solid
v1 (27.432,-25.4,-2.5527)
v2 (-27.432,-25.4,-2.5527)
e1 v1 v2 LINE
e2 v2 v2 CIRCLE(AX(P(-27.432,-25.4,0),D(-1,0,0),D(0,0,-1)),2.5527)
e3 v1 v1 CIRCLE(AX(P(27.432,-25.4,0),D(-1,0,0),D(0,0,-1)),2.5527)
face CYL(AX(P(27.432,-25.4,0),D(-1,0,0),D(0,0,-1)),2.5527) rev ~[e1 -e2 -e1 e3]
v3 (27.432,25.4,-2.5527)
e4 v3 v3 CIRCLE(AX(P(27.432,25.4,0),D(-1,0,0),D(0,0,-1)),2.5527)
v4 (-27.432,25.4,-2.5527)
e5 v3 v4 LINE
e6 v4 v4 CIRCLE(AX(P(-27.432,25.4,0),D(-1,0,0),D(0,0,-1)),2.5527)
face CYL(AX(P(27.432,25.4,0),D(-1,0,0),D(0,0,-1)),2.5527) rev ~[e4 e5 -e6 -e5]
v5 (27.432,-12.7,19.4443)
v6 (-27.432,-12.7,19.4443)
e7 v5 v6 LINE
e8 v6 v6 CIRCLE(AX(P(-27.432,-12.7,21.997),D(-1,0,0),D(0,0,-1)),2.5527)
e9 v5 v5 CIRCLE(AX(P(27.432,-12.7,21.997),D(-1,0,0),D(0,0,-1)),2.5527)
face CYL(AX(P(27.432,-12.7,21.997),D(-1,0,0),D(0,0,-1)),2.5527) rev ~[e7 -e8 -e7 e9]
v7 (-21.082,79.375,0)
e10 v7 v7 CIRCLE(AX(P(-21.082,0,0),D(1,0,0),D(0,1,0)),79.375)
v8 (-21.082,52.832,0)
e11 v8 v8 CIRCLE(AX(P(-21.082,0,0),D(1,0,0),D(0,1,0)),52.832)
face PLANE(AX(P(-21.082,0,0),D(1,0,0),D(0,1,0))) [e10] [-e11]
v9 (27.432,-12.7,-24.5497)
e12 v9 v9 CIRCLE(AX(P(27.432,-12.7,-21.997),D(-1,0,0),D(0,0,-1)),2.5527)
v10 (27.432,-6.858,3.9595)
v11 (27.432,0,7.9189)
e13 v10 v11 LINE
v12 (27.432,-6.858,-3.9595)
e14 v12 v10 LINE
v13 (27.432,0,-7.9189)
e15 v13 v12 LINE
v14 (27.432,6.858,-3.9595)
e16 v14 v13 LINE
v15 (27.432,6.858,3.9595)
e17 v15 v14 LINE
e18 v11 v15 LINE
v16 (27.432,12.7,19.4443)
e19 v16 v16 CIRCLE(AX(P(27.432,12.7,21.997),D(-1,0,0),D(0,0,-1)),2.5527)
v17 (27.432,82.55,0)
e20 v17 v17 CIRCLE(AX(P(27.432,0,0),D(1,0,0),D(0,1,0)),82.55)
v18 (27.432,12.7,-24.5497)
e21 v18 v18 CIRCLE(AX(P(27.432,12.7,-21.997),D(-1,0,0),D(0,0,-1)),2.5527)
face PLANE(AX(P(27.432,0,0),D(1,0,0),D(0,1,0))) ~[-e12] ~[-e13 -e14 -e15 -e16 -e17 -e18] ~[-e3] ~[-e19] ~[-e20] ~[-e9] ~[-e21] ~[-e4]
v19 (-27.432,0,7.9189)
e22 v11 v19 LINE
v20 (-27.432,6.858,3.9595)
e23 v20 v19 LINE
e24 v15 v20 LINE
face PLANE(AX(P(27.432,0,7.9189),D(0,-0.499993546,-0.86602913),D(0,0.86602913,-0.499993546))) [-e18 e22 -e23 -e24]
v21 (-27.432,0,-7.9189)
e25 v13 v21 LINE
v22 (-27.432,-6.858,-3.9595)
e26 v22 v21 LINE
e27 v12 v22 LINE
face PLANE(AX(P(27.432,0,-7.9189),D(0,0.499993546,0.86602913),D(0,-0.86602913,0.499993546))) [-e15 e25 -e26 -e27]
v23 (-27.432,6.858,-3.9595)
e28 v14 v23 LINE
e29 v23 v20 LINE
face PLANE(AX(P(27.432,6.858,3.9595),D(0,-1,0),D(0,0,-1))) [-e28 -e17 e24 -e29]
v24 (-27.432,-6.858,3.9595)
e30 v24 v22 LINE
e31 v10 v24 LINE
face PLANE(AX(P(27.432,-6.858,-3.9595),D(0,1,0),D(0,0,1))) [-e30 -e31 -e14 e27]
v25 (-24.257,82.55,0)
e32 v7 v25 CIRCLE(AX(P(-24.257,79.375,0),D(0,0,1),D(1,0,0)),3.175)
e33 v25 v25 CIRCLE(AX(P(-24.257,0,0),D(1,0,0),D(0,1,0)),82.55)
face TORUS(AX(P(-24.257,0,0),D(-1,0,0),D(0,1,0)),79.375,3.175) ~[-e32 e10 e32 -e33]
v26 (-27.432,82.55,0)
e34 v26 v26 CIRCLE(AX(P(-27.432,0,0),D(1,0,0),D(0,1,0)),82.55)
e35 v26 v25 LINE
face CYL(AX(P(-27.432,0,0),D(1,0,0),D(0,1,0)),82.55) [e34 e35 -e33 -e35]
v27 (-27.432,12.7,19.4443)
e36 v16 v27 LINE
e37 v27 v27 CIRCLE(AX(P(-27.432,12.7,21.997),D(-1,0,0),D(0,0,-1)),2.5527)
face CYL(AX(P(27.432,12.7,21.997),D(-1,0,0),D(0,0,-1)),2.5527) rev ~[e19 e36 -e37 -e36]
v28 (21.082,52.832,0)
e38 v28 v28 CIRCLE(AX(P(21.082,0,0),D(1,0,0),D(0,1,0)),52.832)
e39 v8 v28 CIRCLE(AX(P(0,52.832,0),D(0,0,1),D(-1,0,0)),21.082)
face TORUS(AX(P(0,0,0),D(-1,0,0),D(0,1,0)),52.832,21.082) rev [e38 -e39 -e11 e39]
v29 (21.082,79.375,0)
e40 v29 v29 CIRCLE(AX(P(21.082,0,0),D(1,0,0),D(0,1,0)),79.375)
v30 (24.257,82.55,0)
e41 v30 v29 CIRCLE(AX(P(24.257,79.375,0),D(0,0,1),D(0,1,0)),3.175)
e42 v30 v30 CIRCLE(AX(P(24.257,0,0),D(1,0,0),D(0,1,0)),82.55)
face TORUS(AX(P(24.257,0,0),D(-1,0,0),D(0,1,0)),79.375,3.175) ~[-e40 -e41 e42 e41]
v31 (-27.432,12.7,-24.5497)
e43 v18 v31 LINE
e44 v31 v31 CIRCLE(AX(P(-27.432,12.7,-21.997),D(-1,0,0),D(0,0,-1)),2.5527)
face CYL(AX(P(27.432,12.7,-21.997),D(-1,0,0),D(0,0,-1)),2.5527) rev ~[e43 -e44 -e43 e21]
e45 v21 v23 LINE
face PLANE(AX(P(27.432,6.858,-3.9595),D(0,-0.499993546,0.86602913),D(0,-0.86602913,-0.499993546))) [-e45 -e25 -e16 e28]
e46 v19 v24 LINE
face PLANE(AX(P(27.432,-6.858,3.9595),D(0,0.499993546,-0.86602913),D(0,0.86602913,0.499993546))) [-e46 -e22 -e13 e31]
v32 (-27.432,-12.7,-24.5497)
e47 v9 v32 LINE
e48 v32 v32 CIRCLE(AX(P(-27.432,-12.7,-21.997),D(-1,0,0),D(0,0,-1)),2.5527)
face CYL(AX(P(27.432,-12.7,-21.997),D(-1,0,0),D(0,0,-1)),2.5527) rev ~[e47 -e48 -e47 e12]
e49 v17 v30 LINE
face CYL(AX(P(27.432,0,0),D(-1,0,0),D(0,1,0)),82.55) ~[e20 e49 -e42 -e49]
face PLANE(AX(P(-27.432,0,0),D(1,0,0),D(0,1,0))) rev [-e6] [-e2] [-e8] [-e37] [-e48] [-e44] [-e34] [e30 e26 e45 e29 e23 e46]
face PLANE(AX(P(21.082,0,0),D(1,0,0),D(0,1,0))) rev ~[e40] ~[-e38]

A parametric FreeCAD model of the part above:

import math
import FreeCAD as App
import Part
import Sketcher
from FreeCAD import Vector
Q = App.Units.Quantity


def add_polygon(sketch, points):
    """Adds a closed chain of lines whose ends are joined by coincident constraints."""
    first, n = sketch.GeometryCount, len(points)
    for a, b in zip(points, points[1:] + points[:1]):
        sketch.addGeometry(Part.LineSegment(App.Vector(*a, 0), App.Vector(*b, 0)), False)
    for i in range(n):
        sketch.addConstraint(Sketcher.Constraint("Coincident", first + i, 2, first + (i + 1) % n, 1))

doc = App.newDocument("Part")
body = doc.addObject("PartDesign::Body", "Body")

sketch1 = doc.addObject("Sketcher::SketchObject", "Sketch")
body.addObject(sketch1)
sketch1.AttachmentSupport = (doc.XY_Plane, [""])
sketch1.MapMode = "FlatFace"
sketch1.addGeometry(Part.ArcOfCircle(Part.Circle(Vector(0, 52.8, 0), Vector(0, 0, 1), 21.1), math.radians(180), math.radians(360)), False)
sketch1.addGeometry(Part.LineSegment(Vector(-21.1, 52.8, 0), Vector(-21.1, 79.4, 0)), False)
sketch1.addGeometry(Part.ArcOfCircle(Part.Circle(Vector(-24.3, 79.4, 0), Vector(0, 0, 1), 3.2), math.radians(0), math.radians(90)), False)
sketch1.addGeometry(Part.LineSegment(Vector(-24.3, 82.5, 0), Vector(-27.4, 82.5, 0)), False)
sketch1.addGeometry(Part.LineSegment(Vector(-27.4, 82.5, 0), Vector(-27.4, 0, 0)), False)
sketch1.addGeometry(Part.LineSegment(Vector(-27.4, 0, 0), Vector(27.4, 0, 0)), False)
sketch1.addGeometry(Part.LineSegment(Vector(27.4, 0, 0), Vector(27.4, 82.5, 0)), False)
sketch1.addGeometry(Part.LineSegment(Vector(27.4, 82.5, 0), Vector(24.3, 82.5, 0)), False)
sketch1.addGeometry(Part.ArcOfCircle(Part.Circle(Vector(24.3, 79.4, 0), Vector(0, 0, 1), 3.2), math.radians(90), math.radians(180)), False)
sketch1.addGeometry(Part.LineSegment(Vector(21.1, 79.4, 0), Vector(21.1, 52.8, 0)), False)
sketch1.addConstraint(Sketcher.Constraint("Tangent", 0, 1, 1, 1))
sketch1.addConstraint(Sketcher.Constraint("Tangent", 1, 2, 2, 1))
sketch1.addConstraint(Sketcher.Constraint("Tangent", 2, 2, 3, 1))
sketch1.addConstraint(Sketcher.Constraint("Coincident", 3, 2, 4, 1))
sketch1.addConstraint(Sketcher.Constraint("Coincident", 4, 2, 5, 1))
sketch1.addConstraint(Sketcher.Constraint("Coincident", 5, 2, 6, 1))
sketch1.addConstraint(Sketcher.Constraint("Coincident", 6, 2, 7, 1))
sketch1.addConstraint(Sketcher.Constraint("Tangent", 7, 2, 8, 1))
sketch1.addConstraint(Sketcher.Constraint("Tangent", 8, 2, 9, 1))
sketch1.addConstraint(Sketcher.Constraint("Tangent", 9, 2, 0, 2))
sketch1.addConstraint(Sketcher.Constraint("Vertical", 1))
sketch1.addConstraint(Sketcher.Constraint("Horizontal", 3))
sketch1.addConstraint(Sketcher.Constraint("Vertical", 4))
sketch1.addConstraint(Sketcher.Constraint("Horizontal", 5))
sketch1.addConstraint(Sketcher.Constraint("Vertical", 6))
sketch1.addConstraint(Sketcher.Constraint("Horizontal", 7))
sketch1.addConstraint(Sketcher.Constraint("Vertical", 9))
sketch1.addConstraint(Sketcher.Constraint("Equal", 2, 8))
sketch1.addConstraint(Sketcher.Constraint("Symmetric", 4, 2, 5, 2, -1, 1))
sketch1.addConstraint(Sketcher.Constraint("Symmetric", 2, 3, 8, 3, -2))
sketch1.addConstraint(Sketcher.Constraint("Radius", 0, Q("0.83 in")))
sketch1.addConstraint(Sketcher.Constraint("Radius", 2, Q("0.125 in")))
sketch1.addConstraint(Sketcher.Constraint("DistanceY", 4, 2, 4, 1, Q("3.25 in")))
sketch1.addConstraint(Sketcher.Constraint("DistanceX", 3, 2, 3, 1, Q("0.125 in")))
sketch1.addConstraint(Sketcher.Constraint("DistanceY", -1, 1, 0, 3, Q("2.08 in")))
revolution = doc.addObject("PartDesign::Revolution", "Revolution")
body.addObject(revolution)
revolution.Profile = sketch1
revolution.ReferenceAxis = (sketch1, ["H_Axis"])
revolution.Angle = 360

sketch2 = doc.addObject("Sketcher::SketchObject", "Sketch001")
body.addObject(sketch2)
sketch2.AttachmentSupport = (doc.YZ_Plane, [""])
sketch2.MapMode = "FlatFace"
sketch2.AttachmentOffset = App.Placement(Vector(0, 0, 1.08 * 25.4), App.Rotation())
add_polygon(sketch2, [(-7, -4), (0, -8), (7, -4), (7, 4), (0, 8), (-7, 4)])
sketch2.addConstraint(Sketcher.Constraint("Vertical", 2))
sketch2.addConstraint(Sketcher.Constraint("Vertical", 5))
sketch2.addConstraint(Sketcher.Constraint("Symmetric", 0, 2, 3, 2, -1, 1))
sketch2.addConstraint(Sketcher.Constraint("Symmetric", 1, 2, 4, 2, -1, 1))
sketch2.addConstraint(Sketcher.Constraint("PointOnObject", 0, 2, -2))
sketch2.addConstraint(Sketcher.Constraint("Parallel", 0, 3))
sketch2.addConstraint(Sketcher.Constraint("Horizontal", 2, 2, 4, 2))
sketch2.addConstraint(Sketcher.Constraint("DistanceX", 4, 2, 2, 2, Q("0.54 in")))
sketch2.addConstraint(Sketcher.Constraint("Angle", 0, Q("-29.9996 deg")))
sketch2.addConstraint(Sketcher.Constraint("DistanceY", 2, 1, 2, 2, 7.919))
pocket1 = doc.addObject("PartDesign::Pocket", "Pocket")
body.addObject(pocket1)
pocket1.Profile = sketch2
pocket1.Type = "ThroughAll"

sketch3 = doc.addObject("Sketcher::SketchObject", "Sketch002")
body.addObject(sketch3)
sketch3.AttachmentSupport = (doc.YZ_Plane, [""])
sketch3.MapMode = "FlatFace"
sketch3.AttachmentOffset = App.Placement(Vector(0, 0, 1.08 * 25.4), App.Rotation())
sketch3.addGeometry(Part.Circle(Vector(25.4, 0, 0), Vector(0, 0, 1), 2.6), False)
sketch3.addGeometry(Part.Circle(Vector(12.7, 22, 0), Vector(0, 0, 1), 2.6), False)
sketch3.addGeometry(Part.Circle(Vector(-12.7, 22, 0), Vector(0, 0, 1), 2.6), False)
sketch3.addGeometry(Part.Circle(Vector(-25.4, 0, 0), Vector(0, 0, 1), 2.6), False)
sketch3.addGeometry(Part.Circle(Vector(-12.7, -22, 0), Vector(0, 0, 1), 2.6), False)
sketch3.addGeometry(Part.Circle(Vector(12.7, -22, 0), Vector(0, 0, 1), 2.6), False)
sketch3.addConstraint(Sketcher.Constraint("Equal", 0, 1))
sketch3.addConstraint(Sketcher.Constraint("Equal", 1, 2))
sketch3.addConstraint(Sketcher.Constraint("Equal", 2, 3))
sketch3.addConstraint(Sketcher.Constraint("Equal", 3, 4))
sketch3.addConstraint(Sketcher.Constraint("Equal", 4, 5))
sketch3.addConstraint(Sketcher.Constraint("Symmetric", 0, 3, 3, 3, -1, 1))
sketch3.addConstraint(Sketcher.Constraint("Symmetric", 1, 3, 4, 3, -1, 1))
sketch3.addConstraint(Sketcher.Constraint("Symmetric", 2, 3, 5, 3, -1, 1))
sketch3.addConstraint(Sketcher.Constraint("Symmetric", 1, 3, 2, 3, -2))
sketch3.addConstraint(Sketcher.Constraint("PointOnObject", 0, 3, -1))
sketch3.addConstraint(Sketcher.Constraint("Diameter", 0, Q("0.201 in")))
sketch3.addConstraint(Sketcher.Constraint("DistanceX", -1, 1, 0, 3, Q("1 in")))
sketch3.addConstraint(Sketcher.Constraint("DistanceX", 2, 3, 1, 3, Q("1 in")))
sketch3.addConstraint(Sketcher.Constraint("DistanceY", -1, 1, 1, 3, 21.997))
doc.recompute()
hole = doc.addObject("PartDesign::Hole", "Hole")
body.addObject(hole)
hole.Profile = sketch3
hole.ThreadType = "None"
hole.Diameter = Q("0.201 in")
hole.DepthType = "ThroughAll"

doc.recompute()
